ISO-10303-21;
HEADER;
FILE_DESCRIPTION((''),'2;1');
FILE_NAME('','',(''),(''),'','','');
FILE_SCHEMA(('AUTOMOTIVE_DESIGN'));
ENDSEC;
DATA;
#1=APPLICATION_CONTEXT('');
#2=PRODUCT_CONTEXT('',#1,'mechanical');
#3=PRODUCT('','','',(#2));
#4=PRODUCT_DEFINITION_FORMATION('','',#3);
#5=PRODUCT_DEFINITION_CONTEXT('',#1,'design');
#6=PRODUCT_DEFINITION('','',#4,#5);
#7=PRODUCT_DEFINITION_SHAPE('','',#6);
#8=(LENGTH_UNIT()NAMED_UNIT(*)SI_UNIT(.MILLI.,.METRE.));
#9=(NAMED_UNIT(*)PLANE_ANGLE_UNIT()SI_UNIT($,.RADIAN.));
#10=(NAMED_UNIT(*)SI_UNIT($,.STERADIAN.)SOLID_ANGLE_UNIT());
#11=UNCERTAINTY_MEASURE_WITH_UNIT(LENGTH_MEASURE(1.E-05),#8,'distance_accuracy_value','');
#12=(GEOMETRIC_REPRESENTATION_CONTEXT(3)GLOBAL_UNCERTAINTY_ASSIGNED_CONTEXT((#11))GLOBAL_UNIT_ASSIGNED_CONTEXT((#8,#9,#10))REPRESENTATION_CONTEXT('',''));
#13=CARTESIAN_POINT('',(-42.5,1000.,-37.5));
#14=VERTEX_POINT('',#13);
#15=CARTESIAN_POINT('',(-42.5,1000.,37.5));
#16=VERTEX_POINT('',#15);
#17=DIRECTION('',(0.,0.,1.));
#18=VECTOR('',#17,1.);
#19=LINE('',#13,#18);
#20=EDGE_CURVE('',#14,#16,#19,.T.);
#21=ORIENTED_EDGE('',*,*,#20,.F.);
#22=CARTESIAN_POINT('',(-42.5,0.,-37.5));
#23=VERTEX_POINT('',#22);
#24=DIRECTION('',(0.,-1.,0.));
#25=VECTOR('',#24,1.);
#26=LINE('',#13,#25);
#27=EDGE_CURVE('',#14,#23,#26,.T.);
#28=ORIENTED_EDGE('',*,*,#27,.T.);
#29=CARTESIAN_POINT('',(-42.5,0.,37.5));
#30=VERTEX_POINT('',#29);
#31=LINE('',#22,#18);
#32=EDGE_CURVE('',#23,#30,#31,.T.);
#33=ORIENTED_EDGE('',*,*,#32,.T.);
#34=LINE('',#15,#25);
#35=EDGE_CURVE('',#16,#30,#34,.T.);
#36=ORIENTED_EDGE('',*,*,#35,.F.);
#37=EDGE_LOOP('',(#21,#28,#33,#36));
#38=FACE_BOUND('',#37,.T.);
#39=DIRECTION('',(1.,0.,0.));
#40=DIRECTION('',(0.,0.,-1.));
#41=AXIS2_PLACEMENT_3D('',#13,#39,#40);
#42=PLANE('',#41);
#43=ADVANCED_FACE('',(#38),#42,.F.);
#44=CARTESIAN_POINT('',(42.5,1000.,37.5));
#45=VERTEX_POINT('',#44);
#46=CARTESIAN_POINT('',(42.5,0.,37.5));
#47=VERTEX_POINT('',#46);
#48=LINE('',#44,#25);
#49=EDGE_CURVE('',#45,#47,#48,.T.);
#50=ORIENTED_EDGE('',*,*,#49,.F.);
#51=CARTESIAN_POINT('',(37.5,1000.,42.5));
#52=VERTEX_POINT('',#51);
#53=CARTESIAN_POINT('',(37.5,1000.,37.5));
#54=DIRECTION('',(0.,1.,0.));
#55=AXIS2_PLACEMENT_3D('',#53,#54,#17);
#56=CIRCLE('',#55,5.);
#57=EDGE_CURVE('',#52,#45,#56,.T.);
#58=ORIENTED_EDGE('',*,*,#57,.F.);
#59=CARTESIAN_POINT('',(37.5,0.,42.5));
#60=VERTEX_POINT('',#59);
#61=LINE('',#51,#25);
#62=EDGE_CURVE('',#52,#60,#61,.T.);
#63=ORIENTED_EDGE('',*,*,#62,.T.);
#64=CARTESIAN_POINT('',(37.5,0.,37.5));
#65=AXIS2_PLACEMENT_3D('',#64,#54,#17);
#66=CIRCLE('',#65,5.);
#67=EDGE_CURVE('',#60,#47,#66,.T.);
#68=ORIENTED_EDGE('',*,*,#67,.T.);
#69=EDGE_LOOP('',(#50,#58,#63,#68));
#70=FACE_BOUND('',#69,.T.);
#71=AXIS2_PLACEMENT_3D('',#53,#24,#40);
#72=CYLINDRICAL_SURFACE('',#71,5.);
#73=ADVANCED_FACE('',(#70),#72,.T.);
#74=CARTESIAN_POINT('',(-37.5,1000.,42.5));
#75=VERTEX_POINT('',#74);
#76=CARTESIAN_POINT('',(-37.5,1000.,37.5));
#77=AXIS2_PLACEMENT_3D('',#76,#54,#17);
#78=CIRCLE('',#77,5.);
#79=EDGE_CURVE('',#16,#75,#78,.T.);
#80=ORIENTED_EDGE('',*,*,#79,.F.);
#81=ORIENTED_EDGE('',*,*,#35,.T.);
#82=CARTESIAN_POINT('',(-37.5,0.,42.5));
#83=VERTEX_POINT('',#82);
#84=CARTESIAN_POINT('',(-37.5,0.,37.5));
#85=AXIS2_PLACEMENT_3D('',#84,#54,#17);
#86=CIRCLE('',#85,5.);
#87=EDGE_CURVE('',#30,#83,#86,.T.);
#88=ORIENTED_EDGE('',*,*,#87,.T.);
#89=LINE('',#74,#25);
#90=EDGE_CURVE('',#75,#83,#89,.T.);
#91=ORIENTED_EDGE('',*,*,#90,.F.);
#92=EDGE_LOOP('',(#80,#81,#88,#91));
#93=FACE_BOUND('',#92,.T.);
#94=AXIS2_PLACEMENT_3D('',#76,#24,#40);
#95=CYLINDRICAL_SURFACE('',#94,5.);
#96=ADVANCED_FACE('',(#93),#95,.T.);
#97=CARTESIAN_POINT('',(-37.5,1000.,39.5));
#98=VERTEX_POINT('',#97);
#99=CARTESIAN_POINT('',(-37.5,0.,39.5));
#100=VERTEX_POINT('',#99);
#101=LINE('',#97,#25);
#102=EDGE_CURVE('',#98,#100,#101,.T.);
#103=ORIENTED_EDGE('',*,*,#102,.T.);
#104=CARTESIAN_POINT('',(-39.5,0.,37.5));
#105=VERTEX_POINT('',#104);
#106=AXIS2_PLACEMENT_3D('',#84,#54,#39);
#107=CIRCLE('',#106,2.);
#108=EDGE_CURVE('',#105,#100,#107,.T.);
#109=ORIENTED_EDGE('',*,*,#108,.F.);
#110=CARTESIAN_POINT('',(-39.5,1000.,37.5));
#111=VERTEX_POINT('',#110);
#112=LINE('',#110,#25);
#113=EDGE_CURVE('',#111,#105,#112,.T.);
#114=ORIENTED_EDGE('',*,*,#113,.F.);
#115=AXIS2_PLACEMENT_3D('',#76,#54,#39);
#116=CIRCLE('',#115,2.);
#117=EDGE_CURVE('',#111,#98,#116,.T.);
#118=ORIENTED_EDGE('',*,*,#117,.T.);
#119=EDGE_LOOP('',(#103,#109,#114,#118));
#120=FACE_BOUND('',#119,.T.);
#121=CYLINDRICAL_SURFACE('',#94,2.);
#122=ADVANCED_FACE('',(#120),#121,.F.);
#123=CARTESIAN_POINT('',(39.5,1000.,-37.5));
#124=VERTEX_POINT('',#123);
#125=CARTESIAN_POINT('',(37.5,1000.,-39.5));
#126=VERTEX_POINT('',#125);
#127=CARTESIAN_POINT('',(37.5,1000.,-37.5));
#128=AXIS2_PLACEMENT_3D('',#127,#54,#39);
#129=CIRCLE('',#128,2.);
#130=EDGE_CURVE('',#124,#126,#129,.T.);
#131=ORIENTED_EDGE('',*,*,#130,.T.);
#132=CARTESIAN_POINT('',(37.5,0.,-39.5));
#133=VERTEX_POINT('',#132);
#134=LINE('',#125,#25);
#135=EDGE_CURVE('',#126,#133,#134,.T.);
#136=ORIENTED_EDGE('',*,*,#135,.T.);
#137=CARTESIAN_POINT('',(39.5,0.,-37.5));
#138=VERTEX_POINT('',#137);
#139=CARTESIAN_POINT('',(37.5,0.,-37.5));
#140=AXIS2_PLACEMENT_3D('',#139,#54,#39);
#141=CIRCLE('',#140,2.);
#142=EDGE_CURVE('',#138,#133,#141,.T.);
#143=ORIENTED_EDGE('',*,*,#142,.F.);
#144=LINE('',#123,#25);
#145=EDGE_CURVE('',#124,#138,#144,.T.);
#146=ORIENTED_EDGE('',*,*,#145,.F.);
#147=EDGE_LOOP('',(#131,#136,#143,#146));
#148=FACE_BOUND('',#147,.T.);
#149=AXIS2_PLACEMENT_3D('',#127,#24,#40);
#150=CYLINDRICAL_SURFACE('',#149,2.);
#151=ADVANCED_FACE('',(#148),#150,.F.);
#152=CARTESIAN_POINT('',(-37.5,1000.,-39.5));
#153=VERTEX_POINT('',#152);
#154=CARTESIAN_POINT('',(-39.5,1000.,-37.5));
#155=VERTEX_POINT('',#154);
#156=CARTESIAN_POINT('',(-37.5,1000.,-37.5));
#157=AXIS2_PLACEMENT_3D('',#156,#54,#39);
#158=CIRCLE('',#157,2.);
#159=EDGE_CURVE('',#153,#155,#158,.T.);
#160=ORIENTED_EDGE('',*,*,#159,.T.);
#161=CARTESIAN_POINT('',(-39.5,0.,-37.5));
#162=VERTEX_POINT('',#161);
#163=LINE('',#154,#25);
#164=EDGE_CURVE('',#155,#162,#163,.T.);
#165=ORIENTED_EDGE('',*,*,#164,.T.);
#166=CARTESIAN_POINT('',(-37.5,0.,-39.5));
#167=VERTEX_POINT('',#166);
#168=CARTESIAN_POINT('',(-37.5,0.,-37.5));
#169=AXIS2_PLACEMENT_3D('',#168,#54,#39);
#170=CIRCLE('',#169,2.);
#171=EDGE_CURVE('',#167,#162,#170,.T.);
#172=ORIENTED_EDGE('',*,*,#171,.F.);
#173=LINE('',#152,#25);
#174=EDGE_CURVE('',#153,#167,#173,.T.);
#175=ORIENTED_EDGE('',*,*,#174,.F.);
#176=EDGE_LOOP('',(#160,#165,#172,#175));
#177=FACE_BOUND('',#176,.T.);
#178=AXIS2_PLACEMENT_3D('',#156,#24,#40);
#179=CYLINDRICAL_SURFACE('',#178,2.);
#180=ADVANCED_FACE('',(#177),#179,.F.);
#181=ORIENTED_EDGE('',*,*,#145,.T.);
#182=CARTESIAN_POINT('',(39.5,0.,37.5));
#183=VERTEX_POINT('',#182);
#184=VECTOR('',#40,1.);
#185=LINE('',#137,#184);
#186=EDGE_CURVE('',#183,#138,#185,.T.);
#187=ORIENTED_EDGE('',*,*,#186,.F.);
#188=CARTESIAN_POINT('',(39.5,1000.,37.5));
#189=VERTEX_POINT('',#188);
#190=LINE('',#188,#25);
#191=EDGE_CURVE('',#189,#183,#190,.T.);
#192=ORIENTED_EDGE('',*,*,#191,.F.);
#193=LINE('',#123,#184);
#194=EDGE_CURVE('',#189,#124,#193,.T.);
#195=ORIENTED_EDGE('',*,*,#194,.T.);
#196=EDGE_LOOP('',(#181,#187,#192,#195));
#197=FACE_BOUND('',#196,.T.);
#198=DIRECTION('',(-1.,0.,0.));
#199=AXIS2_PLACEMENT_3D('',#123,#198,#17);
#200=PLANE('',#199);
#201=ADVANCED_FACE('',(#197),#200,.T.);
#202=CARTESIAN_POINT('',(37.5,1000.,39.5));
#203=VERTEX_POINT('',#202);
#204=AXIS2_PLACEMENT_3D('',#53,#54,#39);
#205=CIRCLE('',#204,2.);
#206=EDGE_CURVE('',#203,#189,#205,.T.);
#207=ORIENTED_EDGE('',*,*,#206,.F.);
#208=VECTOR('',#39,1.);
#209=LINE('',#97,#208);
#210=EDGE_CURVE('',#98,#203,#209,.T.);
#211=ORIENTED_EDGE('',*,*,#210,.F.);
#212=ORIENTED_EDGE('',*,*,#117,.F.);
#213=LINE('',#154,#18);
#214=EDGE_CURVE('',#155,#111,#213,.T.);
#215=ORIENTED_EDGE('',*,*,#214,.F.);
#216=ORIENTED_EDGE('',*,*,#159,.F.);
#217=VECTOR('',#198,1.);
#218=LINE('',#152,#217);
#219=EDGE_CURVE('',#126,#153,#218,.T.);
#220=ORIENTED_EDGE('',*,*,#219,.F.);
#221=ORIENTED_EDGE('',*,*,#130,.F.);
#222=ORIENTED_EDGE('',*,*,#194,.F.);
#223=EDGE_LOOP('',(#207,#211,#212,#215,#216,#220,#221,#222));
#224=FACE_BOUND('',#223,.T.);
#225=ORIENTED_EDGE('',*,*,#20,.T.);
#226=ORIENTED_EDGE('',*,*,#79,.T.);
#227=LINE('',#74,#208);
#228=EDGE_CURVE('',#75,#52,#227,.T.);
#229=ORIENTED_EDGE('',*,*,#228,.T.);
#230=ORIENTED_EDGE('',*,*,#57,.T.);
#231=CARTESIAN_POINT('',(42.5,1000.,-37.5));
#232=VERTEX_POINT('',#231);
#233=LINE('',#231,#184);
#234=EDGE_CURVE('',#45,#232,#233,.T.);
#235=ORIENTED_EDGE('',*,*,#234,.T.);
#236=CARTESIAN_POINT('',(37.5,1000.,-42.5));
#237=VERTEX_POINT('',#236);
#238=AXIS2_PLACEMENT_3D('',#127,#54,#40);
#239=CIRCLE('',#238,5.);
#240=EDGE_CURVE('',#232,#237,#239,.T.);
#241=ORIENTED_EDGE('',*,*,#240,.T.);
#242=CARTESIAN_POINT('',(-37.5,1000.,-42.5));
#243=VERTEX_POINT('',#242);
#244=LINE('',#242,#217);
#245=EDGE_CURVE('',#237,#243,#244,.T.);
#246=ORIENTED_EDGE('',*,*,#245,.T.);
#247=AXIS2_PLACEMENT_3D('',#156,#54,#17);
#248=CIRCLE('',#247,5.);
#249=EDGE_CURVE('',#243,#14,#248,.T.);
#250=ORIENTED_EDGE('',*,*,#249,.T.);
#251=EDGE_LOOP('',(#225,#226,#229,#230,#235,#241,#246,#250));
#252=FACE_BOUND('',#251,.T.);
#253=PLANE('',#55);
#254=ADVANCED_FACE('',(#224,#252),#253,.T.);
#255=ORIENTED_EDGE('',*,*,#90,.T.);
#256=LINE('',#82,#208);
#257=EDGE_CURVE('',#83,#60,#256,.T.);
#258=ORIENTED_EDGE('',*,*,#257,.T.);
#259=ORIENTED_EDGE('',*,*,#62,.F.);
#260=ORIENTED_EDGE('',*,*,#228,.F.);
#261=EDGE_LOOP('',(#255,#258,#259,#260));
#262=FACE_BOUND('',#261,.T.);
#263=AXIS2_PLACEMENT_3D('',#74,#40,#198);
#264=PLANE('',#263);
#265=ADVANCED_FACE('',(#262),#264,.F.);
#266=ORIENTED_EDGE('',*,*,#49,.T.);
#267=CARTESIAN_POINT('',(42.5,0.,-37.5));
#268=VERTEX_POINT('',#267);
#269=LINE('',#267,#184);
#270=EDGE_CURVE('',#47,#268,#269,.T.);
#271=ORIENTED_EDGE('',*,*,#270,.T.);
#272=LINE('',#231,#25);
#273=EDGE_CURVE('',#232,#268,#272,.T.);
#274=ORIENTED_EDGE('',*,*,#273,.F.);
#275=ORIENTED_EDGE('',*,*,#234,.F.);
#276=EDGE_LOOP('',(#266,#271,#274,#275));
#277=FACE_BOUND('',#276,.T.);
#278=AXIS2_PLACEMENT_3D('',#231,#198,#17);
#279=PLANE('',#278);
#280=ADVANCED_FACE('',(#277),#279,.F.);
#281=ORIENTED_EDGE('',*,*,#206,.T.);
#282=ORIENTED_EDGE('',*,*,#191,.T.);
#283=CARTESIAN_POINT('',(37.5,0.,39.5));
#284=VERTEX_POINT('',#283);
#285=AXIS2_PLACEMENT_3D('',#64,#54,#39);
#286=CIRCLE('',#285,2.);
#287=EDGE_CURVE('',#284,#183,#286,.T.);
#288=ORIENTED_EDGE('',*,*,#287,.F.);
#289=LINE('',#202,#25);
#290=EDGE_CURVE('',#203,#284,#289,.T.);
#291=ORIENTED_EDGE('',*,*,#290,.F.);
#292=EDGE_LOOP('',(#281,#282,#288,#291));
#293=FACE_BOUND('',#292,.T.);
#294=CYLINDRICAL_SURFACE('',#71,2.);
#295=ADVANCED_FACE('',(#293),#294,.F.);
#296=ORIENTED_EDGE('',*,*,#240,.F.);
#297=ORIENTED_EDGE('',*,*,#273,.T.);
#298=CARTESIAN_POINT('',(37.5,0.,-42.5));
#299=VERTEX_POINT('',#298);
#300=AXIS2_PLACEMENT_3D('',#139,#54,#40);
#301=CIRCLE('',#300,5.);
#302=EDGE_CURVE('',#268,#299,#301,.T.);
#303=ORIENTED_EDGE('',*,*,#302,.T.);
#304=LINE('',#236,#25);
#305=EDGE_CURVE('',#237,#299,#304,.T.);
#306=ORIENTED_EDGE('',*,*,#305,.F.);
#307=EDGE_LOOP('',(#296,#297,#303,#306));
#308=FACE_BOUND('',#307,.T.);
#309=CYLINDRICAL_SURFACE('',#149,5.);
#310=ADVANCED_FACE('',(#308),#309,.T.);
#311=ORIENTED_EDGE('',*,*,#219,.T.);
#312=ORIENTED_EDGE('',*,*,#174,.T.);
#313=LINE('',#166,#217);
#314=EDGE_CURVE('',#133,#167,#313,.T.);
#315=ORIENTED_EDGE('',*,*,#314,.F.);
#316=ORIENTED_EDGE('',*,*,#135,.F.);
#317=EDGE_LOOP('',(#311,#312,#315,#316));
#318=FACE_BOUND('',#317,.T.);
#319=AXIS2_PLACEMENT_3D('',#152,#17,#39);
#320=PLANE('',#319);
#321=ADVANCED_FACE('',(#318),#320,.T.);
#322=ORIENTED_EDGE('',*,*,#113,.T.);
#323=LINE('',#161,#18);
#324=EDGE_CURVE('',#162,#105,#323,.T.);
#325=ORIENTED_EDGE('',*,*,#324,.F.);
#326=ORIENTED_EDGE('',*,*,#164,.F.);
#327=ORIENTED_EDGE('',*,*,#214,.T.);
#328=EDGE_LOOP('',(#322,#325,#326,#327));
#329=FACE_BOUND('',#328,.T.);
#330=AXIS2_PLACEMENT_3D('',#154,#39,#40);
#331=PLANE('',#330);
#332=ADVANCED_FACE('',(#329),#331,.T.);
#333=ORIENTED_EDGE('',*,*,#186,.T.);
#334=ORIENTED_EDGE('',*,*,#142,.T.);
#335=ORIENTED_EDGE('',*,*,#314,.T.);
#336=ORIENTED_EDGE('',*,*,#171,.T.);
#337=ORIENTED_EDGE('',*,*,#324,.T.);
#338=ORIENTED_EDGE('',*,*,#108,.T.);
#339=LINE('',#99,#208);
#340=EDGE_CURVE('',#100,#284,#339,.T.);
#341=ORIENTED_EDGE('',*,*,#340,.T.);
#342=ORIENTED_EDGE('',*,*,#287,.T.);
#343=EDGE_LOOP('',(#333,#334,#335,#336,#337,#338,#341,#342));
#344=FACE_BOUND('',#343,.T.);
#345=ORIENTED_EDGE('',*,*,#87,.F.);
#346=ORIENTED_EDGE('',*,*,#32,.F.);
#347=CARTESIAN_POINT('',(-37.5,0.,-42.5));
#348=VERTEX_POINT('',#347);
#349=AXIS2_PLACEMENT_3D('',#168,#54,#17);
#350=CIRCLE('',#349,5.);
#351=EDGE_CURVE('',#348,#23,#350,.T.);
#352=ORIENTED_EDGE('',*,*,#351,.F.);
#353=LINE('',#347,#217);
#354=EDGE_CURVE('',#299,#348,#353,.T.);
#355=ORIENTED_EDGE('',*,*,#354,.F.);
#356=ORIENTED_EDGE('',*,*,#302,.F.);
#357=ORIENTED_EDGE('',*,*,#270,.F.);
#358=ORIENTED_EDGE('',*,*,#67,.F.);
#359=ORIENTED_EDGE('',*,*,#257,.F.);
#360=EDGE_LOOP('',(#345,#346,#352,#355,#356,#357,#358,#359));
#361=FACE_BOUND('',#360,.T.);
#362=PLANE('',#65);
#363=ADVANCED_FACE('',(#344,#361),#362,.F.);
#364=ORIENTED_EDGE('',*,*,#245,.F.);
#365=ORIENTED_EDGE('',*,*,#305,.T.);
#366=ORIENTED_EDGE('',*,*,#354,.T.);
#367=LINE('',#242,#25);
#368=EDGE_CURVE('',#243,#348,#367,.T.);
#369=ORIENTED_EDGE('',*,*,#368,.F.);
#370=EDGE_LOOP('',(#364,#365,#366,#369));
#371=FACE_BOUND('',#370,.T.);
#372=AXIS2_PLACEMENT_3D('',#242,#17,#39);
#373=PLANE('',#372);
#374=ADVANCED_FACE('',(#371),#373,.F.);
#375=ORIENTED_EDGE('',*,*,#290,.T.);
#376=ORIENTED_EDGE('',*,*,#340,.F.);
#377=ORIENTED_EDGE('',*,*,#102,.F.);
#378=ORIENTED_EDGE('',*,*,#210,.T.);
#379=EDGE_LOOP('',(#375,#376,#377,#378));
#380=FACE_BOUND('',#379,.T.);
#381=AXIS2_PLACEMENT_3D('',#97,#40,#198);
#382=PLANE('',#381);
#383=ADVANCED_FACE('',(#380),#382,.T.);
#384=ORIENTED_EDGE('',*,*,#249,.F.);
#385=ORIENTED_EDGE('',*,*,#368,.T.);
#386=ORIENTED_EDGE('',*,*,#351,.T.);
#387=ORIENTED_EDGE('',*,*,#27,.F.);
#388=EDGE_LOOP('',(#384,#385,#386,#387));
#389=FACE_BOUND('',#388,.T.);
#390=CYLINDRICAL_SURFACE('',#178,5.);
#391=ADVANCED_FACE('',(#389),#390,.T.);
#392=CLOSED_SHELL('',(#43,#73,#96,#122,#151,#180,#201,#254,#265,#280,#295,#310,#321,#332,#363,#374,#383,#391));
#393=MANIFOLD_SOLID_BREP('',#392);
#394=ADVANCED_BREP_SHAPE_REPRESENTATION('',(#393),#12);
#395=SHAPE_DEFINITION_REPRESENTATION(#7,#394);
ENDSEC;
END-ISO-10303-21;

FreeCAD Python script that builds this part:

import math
import FreeCAD as App
import Part
import Sketcher
from FreeCAD import Vector
Q = App.Units.Quantity

doc = App.newDocument("Part")
body = doc.addObject("PartDesign::Body", "Body")

# Sketch on XZ plane
sketch1 = body.newObject("Sketcher::SketchObject", "Sketch")
sketch1.AttachmentSupport = (doc.getObject("XZ_Plane"), [""])
sketch1.MapMode = "FlatFace"
sketch1.addGeometry(Part.LineSegment(Vector(-42.5, -37.5, 0), Vector(-42.5, 37.5, 0)), False)
sketch1.addGeometry(Part.ArcOfCircle(Part.Circle(Vector(-37.5, 37.5, 0), Vector(0, 0, 1), 5), math.radians(90), math.radians(180)), False)
sketch1.addGeometry(Part.LineSegment(Vector(-37.5, 42.5, 0), Vector(37.5, 42.5, 0)), False)
sketch1.addGeometry(Part.ArcOfCircle(Part.Circle(Vector(37.5, 37.5, 0), Vector(0, 0, 1), 5), math.radians(0), math.radians(90)), False)
sketch1.addGeometry(Part.LineSegment(Vector(42.5, 37.5, 0), Vector(42.5, -37.5, 0)), False)
sketch1.addGeometry(Part.ArcOfCircle(Part.Circle(Vector(37.5, -37.5, 0), Vector(0, 0, 1), 5), math.radians(-90), math.radians(0)), False)
sketch1.addGeometry(Part.LineSegment(Vector(37.5, -42.5, 0), Vector(-37.5, -42.5, 0)), False)
sketch1.addGeometry(Part.ArcOfCircle(Part.Circle(Vector(-37.5, -37.5, 0), Vector(0, 0, 1), 5), math.radians(180), math.radians(270)), False)
sketch1.addGeometry(Part.LineSegment(Vector(-39.5, 37.5, 0), Vector(-39.5, -37.5, 0)), False)
sketch1.addGeometry(Part.ArcOfCircle(Part.Circle(Vector(-37.5, -37.5, 0), Vector(0, 0, 1), 2), math.radians(-180), math.radians(-90)), False)
sketch1.addGeometry(Part.LineSegment(Vector(-37.5, -39.5, 0), Vector(37.5, -39.5, 0)), False)
sketch1.addGeometry(Part.ArcOfCircle(Part.Circle(Vector(37.5, -37.5, 0), Vector(0, 0, 1), 2), math.radians(-90), math.radians(0)), False)
sketch1.addGeometry(Part.LineSegment(Vector(39.5, -37.5, 0), Vector(39.5, 37.5, 0)), False)
sketch1.addGeometry(Part.ArcOfCircle(Part.Circle(Vector(37.5, 37.5, 0), Vector(0, 0, 1), 2), math.radians(0), math.radians(90)), False)
sketch1.addGeometry(Part.LineSegment(Vector(37.5, 39.5, 0), Vector(-37.5, 39.5, 0)), False)
sketch1.addGeometry(Part.ArcOfCircle(Part.Circle(Vector(-37.5, 37.5, 0), Vector(0, 0, 1), 2), math.radians(90), math.radians(180)), False)
sketch1.addConstraint(Sketcher.Constraint("Tangent", 0, 2, 1, 2))
sketch1.addConstraint(Sketcher.Constraint("Tangent", 1, 1, 2, 1))
sketch1.addConstraint(Sketcher.Constraint("Tangent", 2, 2, 3, 2))
sketch1.addConstraint(Sketcher.Constraint("Tangent", 3, 1, 4, 1))
sketch1.addConstraint(Sketcher.Constraint("Tangent", 4, 2, 5, 2))
sketch1.addConstraint(Sketcher.Constraint("Tangent", 5, 1, 6, 1))
sketch1.addConstraint(Sketcher.Constraint("Tangent", 6, 2, 7, 2))
sketch1.addConstraint(Sketcher.Constraint("Tangent", 7, 1, 0, 1))
sketch1.addConstraint(Sketcher.Constraint("Tangent", 8, 2, 9, 1))
sketch1.addConstraint(Sketcher.Constraint("Tangent", 9, 2, 10, 1))
sketch1.addConstraint(Sketcher.Constraint("Tangent", 10, 2, 11, 1))
sketch1.addConstraint(Sketcher.Constraint("Tangent", 11, 2, 12, 1))
sketch1.addConstraint(Sketcher.Constraint("Tangent", 12, 2, 13, 1))
sketch1.addConstraint(Sketcher.Constraint("Tangent", 13, 2, 14, 1))
sketch1.addConstraint(Sketcher.Constraint("Tangent", 14, 2, 15, 1))
sketch1.addConstraint(Sketcher.Constraint("Tangent", 15, 2, 8, 1))
sketch1.addConstraint(Sketcher.Constraint("Vertical", 0))
sketch1.addConstraint(Sketcher.Constraint("Horizontal", 2))
sketch1.addConstraint(Sketcher.Constraint("Vertical", 4))
sketch1.addConstraint(Sketcher.Constraint("Horizontal", 6))
sketch1.addConstraint(Sketcher.Constraint("Vertical", 8))
sketch1.addConstraint(Sketcher.Constraint("Horizontal", 10))
sketch1.addConstraint(Sketcher.Constraint("Vertical", 12))
sketch1.addConstraint(Sketcher.Constraint("Horizontal", 14))
sketch1.addConstraint(Sketcher.Constraint("Coincident", 9, 3, 7, 3))
sketch1.addConstraint(Sketcher.Constraint("Coincident", 11, 3, 5, 3))
sketch1.addConstraint(Sketcher.Constraint("Coincident", 13, 3, 3, 3))
sketch1.addConstraint(Sketcher.Constraint("Equal", 1, 3))
sketch1.addConstraint(Sketcher.Constraint("Equal", 3, 5))
sketch1.addConstraint(Sketcher.Constraint("Equal", 5, 7))
sketch1.addConstraint(Sketcher.Constraint("Equal", 13, 15))
sketch1.addConstraint(Sketcher.Constraint("Symmetric", 1, 3, 5, 3, -1, 1))
sketch1.addConstraint(Sketcher.Constraint("Equal", 14, 0))
sketch1.addConstraint(Sketcher.Constraint("Radius", 1, Q("5 mm")))
sketch1.addConstraint(Sketcher.Constraint("Radius", 9, Q("2 mm")))
sketch1.addConstraint(Sketcher.Constraint("DistanceX", 2, 1, 2, 2, Q("75 mm")))
pad1 = body.newObject("PartDesign::Pad", "Pad")
pad1.Profile = sketch1
pad1.Length = 1000
pad1.Reversed = True

doc.recompute()
